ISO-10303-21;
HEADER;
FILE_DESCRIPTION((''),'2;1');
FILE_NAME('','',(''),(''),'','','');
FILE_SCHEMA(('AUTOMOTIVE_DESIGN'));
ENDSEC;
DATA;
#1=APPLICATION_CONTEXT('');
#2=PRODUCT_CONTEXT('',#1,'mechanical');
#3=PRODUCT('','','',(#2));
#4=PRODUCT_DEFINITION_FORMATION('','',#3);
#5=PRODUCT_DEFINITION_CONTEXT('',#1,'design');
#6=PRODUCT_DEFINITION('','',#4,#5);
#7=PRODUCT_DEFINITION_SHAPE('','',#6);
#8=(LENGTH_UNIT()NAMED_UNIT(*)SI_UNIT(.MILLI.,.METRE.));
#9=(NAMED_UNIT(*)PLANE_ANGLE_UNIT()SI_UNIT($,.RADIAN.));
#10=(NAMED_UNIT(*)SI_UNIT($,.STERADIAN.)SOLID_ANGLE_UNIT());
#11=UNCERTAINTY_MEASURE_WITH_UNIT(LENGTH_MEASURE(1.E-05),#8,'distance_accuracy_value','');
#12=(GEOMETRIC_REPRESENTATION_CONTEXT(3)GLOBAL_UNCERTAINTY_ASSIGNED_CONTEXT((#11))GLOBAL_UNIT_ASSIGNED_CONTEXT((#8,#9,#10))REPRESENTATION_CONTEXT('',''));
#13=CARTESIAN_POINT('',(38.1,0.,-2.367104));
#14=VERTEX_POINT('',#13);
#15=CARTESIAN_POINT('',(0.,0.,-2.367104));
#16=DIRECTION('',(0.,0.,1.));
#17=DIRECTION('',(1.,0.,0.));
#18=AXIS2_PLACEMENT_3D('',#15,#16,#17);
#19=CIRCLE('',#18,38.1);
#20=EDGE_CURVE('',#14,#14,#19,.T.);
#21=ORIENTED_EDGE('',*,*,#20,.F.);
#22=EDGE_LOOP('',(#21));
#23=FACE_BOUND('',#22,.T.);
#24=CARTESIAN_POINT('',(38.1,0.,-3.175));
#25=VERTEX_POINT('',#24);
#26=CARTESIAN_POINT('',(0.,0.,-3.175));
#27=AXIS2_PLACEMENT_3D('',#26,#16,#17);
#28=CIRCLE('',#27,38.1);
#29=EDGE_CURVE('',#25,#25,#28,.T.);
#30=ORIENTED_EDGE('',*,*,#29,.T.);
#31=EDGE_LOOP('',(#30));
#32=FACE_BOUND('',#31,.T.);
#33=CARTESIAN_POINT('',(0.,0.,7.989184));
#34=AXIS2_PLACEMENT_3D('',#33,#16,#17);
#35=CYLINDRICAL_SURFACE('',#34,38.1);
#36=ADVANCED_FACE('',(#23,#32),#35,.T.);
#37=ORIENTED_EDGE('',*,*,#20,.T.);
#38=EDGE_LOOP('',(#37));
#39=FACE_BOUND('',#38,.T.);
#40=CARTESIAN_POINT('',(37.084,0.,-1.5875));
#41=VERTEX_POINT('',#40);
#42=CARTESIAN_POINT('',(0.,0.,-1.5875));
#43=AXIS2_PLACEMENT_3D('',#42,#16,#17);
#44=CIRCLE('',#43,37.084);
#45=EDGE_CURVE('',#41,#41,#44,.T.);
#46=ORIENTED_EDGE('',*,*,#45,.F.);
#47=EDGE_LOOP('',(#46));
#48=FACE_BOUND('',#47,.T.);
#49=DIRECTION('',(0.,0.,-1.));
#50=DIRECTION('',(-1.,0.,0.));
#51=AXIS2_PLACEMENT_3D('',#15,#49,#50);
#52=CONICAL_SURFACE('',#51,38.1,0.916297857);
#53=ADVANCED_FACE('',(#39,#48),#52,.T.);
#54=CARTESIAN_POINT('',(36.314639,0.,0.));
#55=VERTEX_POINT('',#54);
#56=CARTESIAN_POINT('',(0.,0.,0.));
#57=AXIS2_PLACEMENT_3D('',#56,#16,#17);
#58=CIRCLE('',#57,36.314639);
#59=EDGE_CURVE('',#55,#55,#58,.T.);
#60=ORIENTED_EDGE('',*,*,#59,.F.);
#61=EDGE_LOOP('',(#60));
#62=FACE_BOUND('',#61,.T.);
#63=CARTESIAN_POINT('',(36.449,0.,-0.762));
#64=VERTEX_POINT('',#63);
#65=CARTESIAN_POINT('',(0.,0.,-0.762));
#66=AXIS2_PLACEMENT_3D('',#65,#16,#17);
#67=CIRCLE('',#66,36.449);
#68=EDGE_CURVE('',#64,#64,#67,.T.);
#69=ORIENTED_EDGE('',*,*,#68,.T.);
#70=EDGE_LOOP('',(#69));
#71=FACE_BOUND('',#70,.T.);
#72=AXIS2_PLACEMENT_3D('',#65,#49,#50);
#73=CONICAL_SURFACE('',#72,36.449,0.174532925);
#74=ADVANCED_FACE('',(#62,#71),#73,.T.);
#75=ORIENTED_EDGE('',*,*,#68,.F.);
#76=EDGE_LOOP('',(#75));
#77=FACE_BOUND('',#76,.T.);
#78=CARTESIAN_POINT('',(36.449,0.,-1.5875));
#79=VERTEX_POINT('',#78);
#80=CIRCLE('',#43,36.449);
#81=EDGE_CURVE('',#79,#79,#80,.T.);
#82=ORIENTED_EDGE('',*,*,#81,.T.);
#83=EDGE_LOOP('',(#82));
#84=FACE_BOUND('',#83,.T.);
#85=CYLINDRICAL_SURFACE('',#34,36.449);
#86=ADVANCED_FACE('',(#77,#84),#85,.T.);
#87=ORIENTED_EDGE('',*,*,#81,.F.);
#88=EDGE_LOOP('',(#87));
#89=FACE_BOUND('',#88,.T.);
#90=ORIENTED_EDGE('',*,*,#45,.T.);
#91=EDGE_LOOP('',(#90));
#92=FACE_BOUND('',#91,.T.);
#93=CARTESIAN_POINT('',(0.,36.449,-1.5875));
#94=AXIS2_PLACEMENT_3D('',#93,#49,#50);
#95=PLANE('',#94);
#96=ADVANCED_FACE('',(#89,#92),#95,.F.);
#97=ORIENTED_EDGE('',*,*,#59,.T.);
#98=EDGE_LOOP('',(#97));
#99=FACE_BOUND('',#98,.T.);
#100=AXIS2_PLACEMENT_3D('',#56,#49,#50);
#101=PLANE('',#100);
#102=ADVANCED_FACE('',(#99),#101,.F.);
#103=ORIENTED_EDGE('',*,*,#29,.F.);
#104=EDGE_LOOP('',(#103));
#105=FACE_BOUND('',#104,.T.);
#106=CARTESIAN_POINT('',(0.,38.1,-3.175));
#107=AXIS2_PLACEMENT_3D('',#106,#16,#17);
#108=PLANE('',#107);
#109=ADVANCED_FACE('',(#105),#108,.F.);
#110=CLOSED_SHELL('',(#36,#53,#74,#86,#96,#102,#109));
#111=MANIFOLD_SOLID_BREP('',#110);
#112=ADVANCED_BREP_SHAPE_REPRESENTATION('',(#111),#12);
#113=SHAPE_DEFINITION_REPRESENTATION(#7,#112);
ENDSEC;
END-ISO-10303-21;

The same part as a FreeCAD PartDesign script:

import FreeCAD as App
import Part
import Sketcher

V = App.Vector
Q = App.Units.Quantity


def add_polygon(sketch, points):
    """Adds a closed chain of lines whose ends are joined by coincident constraints."""
    first, n = sketch.GeometryCount, len(points)
    for a, b in zip(points, points[1:] + points[:1]):
        sketch.addGeometry(Part.LineSegment(App.Vector(*a, 0), App.Vector(*b, 0)), False)
    for i in range(n):
        sketch.addConstraint(Sketcher.Constraint("Coincident", first + i, 2, first + (i + 1) % n, 1))

doc = App.newDocument("Part")
body = doc.addObject("PartDesign::Body", "Body")

# Sketch on YZ plane
sketch1 = doc.addObject("Sketcher::SketchObject", "Sketch")
body.addObject(sketch1)
sketch1.AttachmentSupport = (doc.YZ_Plane, [""])
sketch1.MapMode = "FlatFace"
add_polygon(sketch1, [(36.314639, 0), (0, 0), (0, -3.175), (38.1, -3.175), (38.1, -2.367104), (37.084, -1.5875), (36.449, -1.5875), (36.449, -0.762)])  # lines 0-7
sketch1.addConstraint([
    Sketcher.Constraint("Horizontal", 0),
    Sketcher.Constraint("Vertical", 1),
    Sketcher.Constraint("Horizontal", 2),
    Sketcher.Constraint("Vertical", 3),
    Sketcher.Constraint("Horizontal", 5),
    Sketcher.Constraint("Vertical", 6),
    Sketcher.Constraint("Coincident", 0, 2, -1, 1),
    Sketcher.Constraint("DistanceX", 2, 1, 2, 2, Q("1.5 in")),
    Sketcher.Constraint("Angle", 7, Q("100 deg")),
    Sketcher.Constraint("Angle", 4, Q("142.5 deg")),
    Sketcher.Constraint("DistanceX", 5, 2, 5, 1, Q("0.025 in")),
    Sketcher.Constraint("DistanceY", 1, 2, 1, 1, Q("0.125 in")),
    Sketcher.Constraint("DistanceX", -1, 1, 4, 2, Q("1.46 in")),
    Sketcher.Constraint("DistanceY", 6, 2, -1, 1, Q("0.03 in")),
    Sketcher.Constraint("DistanceY", 6, 1, 6, 2, Q("0.0325 in")),
])
revolution = doc.addObject("PartDesign::Revolution", "Revolution")
body.addObject(revolution)
revolution.Profile = sketch1
revolution.ReferenceAxis = (sketch1, ["V_Axis"])
revolution.Angle = 360

doc.recompute()
